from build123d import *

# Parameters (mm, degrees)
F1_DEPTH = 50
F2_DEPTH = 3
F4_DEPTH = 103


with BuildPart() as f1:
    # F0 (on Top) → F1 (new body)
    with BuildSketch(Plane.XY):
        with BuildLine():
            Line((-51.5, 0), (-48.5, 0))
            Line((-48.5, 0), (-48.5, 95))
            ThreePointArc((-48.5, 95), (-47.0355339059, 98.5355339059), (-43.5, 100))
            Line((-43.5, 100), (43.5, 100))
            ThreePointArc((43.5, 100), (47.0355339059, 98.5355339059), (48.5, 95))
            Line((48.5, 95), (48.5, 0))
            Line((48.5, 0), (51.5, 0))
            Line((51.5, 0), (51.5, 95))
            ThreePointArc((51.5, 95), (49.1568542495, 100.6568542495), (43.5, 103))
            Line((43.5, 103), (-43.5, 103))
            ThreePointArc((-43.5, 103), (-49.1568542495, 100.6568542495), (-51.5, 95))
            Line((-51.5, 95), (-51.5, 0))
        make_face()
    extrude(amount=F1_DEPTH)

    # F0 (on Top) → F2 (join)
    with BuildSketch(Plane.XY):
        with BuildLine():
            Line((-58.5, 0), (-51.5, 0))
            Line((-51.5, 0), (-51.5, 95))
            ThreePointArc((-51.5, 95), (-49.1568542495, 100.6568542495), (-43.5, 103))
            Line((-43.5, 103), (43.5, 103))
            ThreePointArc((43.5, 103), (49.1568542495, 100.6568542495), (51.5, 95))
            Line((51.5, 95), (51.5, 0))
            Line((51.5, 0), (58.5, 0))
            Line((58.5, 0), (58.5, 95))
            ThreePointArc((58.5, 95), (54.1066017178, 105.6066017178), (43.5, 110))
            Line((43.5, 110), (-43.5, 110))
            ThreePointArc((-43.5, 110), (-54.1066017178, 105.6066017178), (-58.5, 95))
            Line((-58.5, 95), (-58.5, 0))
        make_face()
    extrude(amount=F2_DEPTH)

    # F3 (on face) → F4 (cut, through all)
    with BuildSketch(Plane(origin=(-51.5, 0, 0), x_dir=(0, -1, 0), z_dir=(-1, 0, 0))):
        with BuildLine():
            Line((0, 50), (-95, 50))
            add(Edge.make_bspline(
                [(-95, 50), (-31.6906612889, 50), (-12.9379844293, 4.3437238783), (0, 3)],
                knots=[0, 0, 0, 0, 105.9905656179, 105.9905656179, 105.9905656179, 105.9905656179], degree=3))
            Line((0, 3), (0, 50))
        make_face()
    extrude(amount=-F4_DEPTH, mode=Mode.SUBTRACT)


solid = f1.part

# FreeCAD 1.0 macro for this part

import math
import FreeCAD as App
import Part
import Sketcher
from FreeCAD import Vector
Q = App.Units.Quantity

doc = App.newDocument("Part")
params = doc.addObject("Spreadsheet::Sheet", "Params")
for row, (alias, value) in enumerate([
    ("sketch1_radius", "5 mm"),
    ("sketch1_radius2", "8 mm"),
    ("sketch1_width", "87 mm"),
    ("sketch1_height", "95 mm"),
    ("pad1_length", "50 mm"),
    ("sketch2_radius", "8 mm"),
    ("sketch2_radius2", "15 mm"),
    ("sketch2_width", "87 mm"),
    ("sketch2_height", "95 mm"),
    ("pad2_length", "3 mm"),
], start=1):
    params.set(f"A{row}", alias)
    params.set(f"B{row}", "=" + value)
    params.setAlias(f"B{row}", alias)

body = doc.addObject("PartDesign::Body", "Body")

# Sketch on XY plane
sketch1 = body.newObject("Sketcher::SketchObject", "Sketch")
sketch1.AttachmentSupport = (doc.getObject("XY_Plane"), [""])
sketch1.MapMode = "FlatFace"
sketch1.addGeometry(Part.LineSegment(Vector(-51.5, 0, 0), Vector(-48.5, 0, 0)), False)
sketch1.addGeometry(Part.LineSegment(Vector(-48.5, 0, 0), Vector(-48.5, 95, 0)), False)
sketch1.addGeometry(Part.ArcOfCircle(Part.Circle(Vector(-43.5, 95, 0), Vector(0, 0, 1), 5), math.radians(90), math.radians(180)), False)
sketch1.addGeometry(Part.LineSegment(Vector(-43.5, 100, 0), Vector(43.5, 100, 0)), False)
sketch1.addGeometry(Part.ArcOfCircle(Part.Circle(Vector(43.5, 95, 0), Vector(0, 0, 1), 5), math.radians(0), math.radians(90)), False)
sketch1.addGeometry(Part.LineSegment(Vector(48.5, 95, 0), Vector(48.5, 0, 0)), False)
sketch1.addGeometry(Part.LineSegment(Vector(48.5, 0, 0), Vector(51.5, 0, 0)), False)
sketch1.addGeometry(Part.LineSegment(Vector(51.5, 0, 0), Vector(51.5, 95, 0)), False)
sketch1.addGeometry(Part.ArcOfCircle(Part.Circle(Vector(43.5, 95, 0), Vector(0, 0, 1), 8), math.radians(0), math.radians(90)), False)
sketch1.addGeometry(Part.LineSegment(Vector(43.5, 103, 0), Vector(-43.5, 103, 0)), False)
sketch1.addGeometry(Part.ArcOfCircle(Part.Circle(Vector(-43.5, 95, 0), Vector(0, 0, 1), 8), math.radians(90), math.radians(180)), False)
sketch1.addGeometry(Part.LineSegment(Vector(-51.5, 95, 0), Vector(-51.5, 0, 0)), False)
sketch1.addConstraint(Sketcher.Constraint("Coincident", 0, 2, 1, 1))
sketch1.addConstraint(Sketcher.Constraint("Tangent", 1, 2, 2, 2))
sketch1.addConstraint(Sketcher.Constraint("Tangent", 2, 1, 3, 1))
sketch1.addConstraint(Sketcher.Constraint("Tangent", 3, 2, 4, 2))
sketch1.addConstraint(Sketcher.Constraint("Tangent", 4, 1, 5, 1))
sketch1.addConstraint(Sketcher.Constraint("Coincident", 5, 2, 6, 1))
sketch1.addConstraint(Sketcher.Constraint("Coincident", 6, 2, 7, 1))
sketch1.addConstraint(Sketcher.Constraint("Tangent", 7, 2, 8, 1))
sketch1.addConstraint(Sketcher.Constraint("Tangent", 8, 2, 9, 1))
sketch1.addConstraint(Sketcher.Constraint("Tangent", 9, 2, 10, 1))
sketch1.addConstraint(Sketcher.Constraint("Tangent", 10, 2, 11, 1))
sketch1.addConstraint(Sketcher.Constraint("Coincident", 11, 2, 0, 1))
sketch1.addConstraint(Sketcher.Constraint("Horizontal", 0))
sketch1.addConstraint(Sketcher.Constraint("Vertical", 1))
sketch1.addConstraint(Sketcher.Constraint("Horizontal", 3))
sketch1.addConstraint(Sketcher.Constraint("Vertical", 5))
sketch1.addConstraint(Sketcher.Constraint("Horizontal", 6))
sketch1.addConstraint(Sketcher.Constraint("Vertical", 7))
sketch1.addConstraint(Sketcher.Constraint("Horizontal", 9))
sketch1.addConstraint(Sketcher.Constraint("Vertical", 11))
sketch1.addConstraint(Sketcher.Constraint("Coincident", 8, 3, 4, 3))
sketch1.addConstraint(Sketcher.Constraint("Coincident", 10, 3, 2, 3))
sketch1.addConstraint(Sketcher.Constraint("Equal", 2, 4))
sketch1.addConstraint(Sketcher.Constraint("Symmetric", 0, 2, 5, 2, -1, 1))
sketch1.addConstraint(Sketcher.Constraint("PointOnObject", 0, 2, -1))
sketch1.addConstraint(Sketcher.Constraint("Radius", 2, Q("5 mm")))
sketch1.addConstraint(Sketcher.Constraint("Radius", 8, Q("8 mm")))
sketch1.addConstraint(Sketcher.Constraint("DistanceX", 3, 1, 3, 2, Q("87 mm")))
sketch1.addConstraint(Sketcher.Constraint("DistanceY", 1, 1, 1, 2, Q("95 mm")))
sketch1.setExpression("Constraints[25]", "Params.sketch1_radius")
sketch1.setExpression("Constraints[26]", "Params.sketch1_radius2")
sketch1.setExpression("Constraints[27]", "Params.sketch1_width")
sketch1.setExpression("Constraints[28]", "Params.sketch1_height")
pad1 = body.newObject("PartDesign::Pad", "Pad")
pad1.Profile = sketch1
pad1.setExpression("Length", "Params.pad1_length")

# Sketch on XY plane
sketch2 = body.newObject("Sketcher::SketchObject", "Sketch001")
sketch2.AttachmentSupport = (doc.getObject("XY_Plane"), [""])
sketch2.MapMode = "FlatFace"
sketch2.addGeometry(Part.LineSegment(Vector(-58, 0, 0), Vector(-52, 0, 0)), False)
sketch2.addGeometry(Part.LineSegment(Vector(-52, 0, 0), Vector(-52, 95, 0)), False)
sketch2.addGeometry(Part.ArcOfCircle(Part.Circle(Vector(-44, 95, 0), Vector(0, 0, 1), 8), math.radians(90), math.radians(180)), False)
sketch2.addGeometry(Part.LineSegment(Vector(-44, 103, 0), Vector(44, 103, 0)), False)
sketch2.addGeometry(Part.ArcOfCircle(Part.Circle(Vector(44, 95, 0), Vector(0, 0, 1), 8), math.radians(0), math.radians(90)), False)
sketch2.addGeometry(Part.LineSegment(Vector(52, 95, 0), Vector(52, 0, 0)), False)
sketch2.addGeometry(Part.LineSegment(Vector(52, 0, 0), Vector(58, 0, 0)), False)
sketch2.addGeometry(Part.LineSegment(Vector(58, 0, 0), Vector(58, 95, 0)), False)
sketch2.addGeometry(Part.ArcOfCircle(Part.Circle(Vector(44, 95, 0), Vector(0, 0, 1), 15), math.radians(0), math.radians(90)), False)
sketch2.addGeometry(Part.LineSegment(Vector(44, 110, 0), Vector(-44, 110, 0)), False)
sketch2.addGeometry(Part.ArcOfCircle(Part.Circle(Vector(-44, 95, 0), Vector(0, 0, 1), 15), math.radians(90), math.radians(180)), False)
sketch2.addGeometry(Part.LineSegment(Vector(-58, 95, 0), Vector(-58, 0, 0)), False)
sketch2.addConstraint(Sketcher.Constraint("Coincident", 0, 2, 1, 1))
sketch2.addConstraint(Sketcher.Constraint("Tangent", 1, 2, 2, 2))
sketch2.addConstraint(Sketcher.Constraint("Tangent", 2, 1, 3, 1))
sketch2.addConstraint(Sketcher.Constraint("Tangent", 3, 2, 4, 2))
sketch2.addConstraint(Sketcher.Constraint("Tangent", 4, 1, 5, 1))
sketch2.addConstraint(Sketcher.Constraint("Coincident", 5, 2, 6, 1))
sketch2.addConstraint(Sketcher.Constraint("Coincident", 6, 2, 7, 1))
sketch2.addConstraint(Sketcher.Constraint("Tangent", 7, 2, 8, 1))
sketch2.addConstraint(Sketcher.Constraint("Tangent", 8, 2, 9, 1))
sketch2.addConstraint(Sketcher.Constraint("Tangent", 9, 2, 10, 1))
sketch2.addConstraint(Sketcher.Constraint("Tangent", 10, 2, 11, 1))
sketch2.addConstraint(Sketcher.Constraint("Coincident", 11, 2, 0, 1))
sketch2.addConstraint(Sketcher.Constraint("Horizontal", 0))
sketch2.addConstraint(Sketcher.Constraint("Vertical", 1))
sketch2.addConstraint(Sketcher.Constraint("Horizontal", 3))
sketch2.addConstraint(Sketcher.Constraint("Vertical", 5))
sketch2.addConstraint(Sketcher.Constraint("Horizontal", 6))
sketch2.addConstraint(Sketcher.Constraint("Vertical", 7))
sketch2.addConstraint(Sketcher.Constraint("Horizontal", 9))
sketch2.addConstraint(Sketcher.Constraint("Vertical", 11))
sketch2.addConstraint(Sketcher.Constraint("Coincident", 8, 3, 4, 3))
sketch2.addConstraint(Sketcher.Constraint("Coincident", 10, 3, 2, 3))
sketch2.addConstraint(Sketcher.Constraint("Equal", 2, 4))
sketch2.addConstraint(Sketcher.Constraint("Symmetric", 0, 2, 5, 2, -1, 1))
sketch2.addConstraint(Sketcher.Constraint("PointOnObject", 0, 2, -1))
sketch2.addConstraint(Sketcher.Constraint("Radius", 2, Q("8 mm")))
sketch2.addConstraint(Sketcher.Constraint("Radius", 8, Q("15 mm")))
sketch2.addConstraint(Sketcher.Constraint("DistanceX", 3, 1, 3, 2, Q("87 mm")))
sketch2.addConstraint(Sketcher.Constraint("DistanceY", 1, 1, 1, 2, Q("95 mm")))
sketch2.setExpression("Constraints[25]", "Params.sketch2_radius")
sketch2.setExpression("Constraints[26]", "Params.sketch2_radius2")
sketch2.setExpression("Constraints[27]", "Params.sketch2_width")
sketch2.setExpression("Constraints[28]", "Params.sketch2_height")
pad2 = body.newObject("PartDesign::Pad", "Pad001")
pad2.Profile = sketch2
pad2.setExpression("Length", "Params.pad2_length")

# Sketch on YZ plane
sketch3 = body.newObject("Sketcher::SketchObject", "Sketch002")
sketch3.AttachmentSupport = (doc.getObject("YZ_Plane"), [""])
sketch3.MapMode = "FlatFace"
sketch3.AttachmentOffset = App.Placement(Vector(0, 0, -51.5), App.Rotation())
sketch3.addGeometry(Part.LineSegment(Vector(0, 50, 0), Vector(95, 50, 0)), False)
sketch3.addGeometry(Part.BSplineCurve([Vector(95, 50, 0), Vector(31.690661, 50, 0), Vector(12.937984, 4.343724, 0), Vector(0, 3, 0)], [4, 4], [0, 105.990565618], False, 3, [1, 1, 1, 1], False), False)
sketch3.addGeometry(Part.LineSegment(Vector(0, 3, 0), Vector(0, 50, 0)), False)
sketch3.addConstraint(Sketcher.Constraint("Block", 1))
sketch3.addConstraint(Sketcher.Constraint("Coincident", 0, 2, 1, 1))
sketch3.addConstraint(Sketcher.Constraint("Coincident", 1, 2, 2, 1))
sketch3.addConstraint(Sketcher.Constraint("Coincident", 2, 2, 0, 1))
sketch3.addConstraint(Sketcher.Constraint("Horizontal", 0))
sketch3.addConstraint(Sketcher.Constraint("Vertical", 2))
pocket1 = body.newObject("PartDesign::Pocket", "Pocket")
pocket1.Profile = sketch3
pocket1.Type = "ThroughAll"
pocket1.Reversed = True

doc.recompute()
